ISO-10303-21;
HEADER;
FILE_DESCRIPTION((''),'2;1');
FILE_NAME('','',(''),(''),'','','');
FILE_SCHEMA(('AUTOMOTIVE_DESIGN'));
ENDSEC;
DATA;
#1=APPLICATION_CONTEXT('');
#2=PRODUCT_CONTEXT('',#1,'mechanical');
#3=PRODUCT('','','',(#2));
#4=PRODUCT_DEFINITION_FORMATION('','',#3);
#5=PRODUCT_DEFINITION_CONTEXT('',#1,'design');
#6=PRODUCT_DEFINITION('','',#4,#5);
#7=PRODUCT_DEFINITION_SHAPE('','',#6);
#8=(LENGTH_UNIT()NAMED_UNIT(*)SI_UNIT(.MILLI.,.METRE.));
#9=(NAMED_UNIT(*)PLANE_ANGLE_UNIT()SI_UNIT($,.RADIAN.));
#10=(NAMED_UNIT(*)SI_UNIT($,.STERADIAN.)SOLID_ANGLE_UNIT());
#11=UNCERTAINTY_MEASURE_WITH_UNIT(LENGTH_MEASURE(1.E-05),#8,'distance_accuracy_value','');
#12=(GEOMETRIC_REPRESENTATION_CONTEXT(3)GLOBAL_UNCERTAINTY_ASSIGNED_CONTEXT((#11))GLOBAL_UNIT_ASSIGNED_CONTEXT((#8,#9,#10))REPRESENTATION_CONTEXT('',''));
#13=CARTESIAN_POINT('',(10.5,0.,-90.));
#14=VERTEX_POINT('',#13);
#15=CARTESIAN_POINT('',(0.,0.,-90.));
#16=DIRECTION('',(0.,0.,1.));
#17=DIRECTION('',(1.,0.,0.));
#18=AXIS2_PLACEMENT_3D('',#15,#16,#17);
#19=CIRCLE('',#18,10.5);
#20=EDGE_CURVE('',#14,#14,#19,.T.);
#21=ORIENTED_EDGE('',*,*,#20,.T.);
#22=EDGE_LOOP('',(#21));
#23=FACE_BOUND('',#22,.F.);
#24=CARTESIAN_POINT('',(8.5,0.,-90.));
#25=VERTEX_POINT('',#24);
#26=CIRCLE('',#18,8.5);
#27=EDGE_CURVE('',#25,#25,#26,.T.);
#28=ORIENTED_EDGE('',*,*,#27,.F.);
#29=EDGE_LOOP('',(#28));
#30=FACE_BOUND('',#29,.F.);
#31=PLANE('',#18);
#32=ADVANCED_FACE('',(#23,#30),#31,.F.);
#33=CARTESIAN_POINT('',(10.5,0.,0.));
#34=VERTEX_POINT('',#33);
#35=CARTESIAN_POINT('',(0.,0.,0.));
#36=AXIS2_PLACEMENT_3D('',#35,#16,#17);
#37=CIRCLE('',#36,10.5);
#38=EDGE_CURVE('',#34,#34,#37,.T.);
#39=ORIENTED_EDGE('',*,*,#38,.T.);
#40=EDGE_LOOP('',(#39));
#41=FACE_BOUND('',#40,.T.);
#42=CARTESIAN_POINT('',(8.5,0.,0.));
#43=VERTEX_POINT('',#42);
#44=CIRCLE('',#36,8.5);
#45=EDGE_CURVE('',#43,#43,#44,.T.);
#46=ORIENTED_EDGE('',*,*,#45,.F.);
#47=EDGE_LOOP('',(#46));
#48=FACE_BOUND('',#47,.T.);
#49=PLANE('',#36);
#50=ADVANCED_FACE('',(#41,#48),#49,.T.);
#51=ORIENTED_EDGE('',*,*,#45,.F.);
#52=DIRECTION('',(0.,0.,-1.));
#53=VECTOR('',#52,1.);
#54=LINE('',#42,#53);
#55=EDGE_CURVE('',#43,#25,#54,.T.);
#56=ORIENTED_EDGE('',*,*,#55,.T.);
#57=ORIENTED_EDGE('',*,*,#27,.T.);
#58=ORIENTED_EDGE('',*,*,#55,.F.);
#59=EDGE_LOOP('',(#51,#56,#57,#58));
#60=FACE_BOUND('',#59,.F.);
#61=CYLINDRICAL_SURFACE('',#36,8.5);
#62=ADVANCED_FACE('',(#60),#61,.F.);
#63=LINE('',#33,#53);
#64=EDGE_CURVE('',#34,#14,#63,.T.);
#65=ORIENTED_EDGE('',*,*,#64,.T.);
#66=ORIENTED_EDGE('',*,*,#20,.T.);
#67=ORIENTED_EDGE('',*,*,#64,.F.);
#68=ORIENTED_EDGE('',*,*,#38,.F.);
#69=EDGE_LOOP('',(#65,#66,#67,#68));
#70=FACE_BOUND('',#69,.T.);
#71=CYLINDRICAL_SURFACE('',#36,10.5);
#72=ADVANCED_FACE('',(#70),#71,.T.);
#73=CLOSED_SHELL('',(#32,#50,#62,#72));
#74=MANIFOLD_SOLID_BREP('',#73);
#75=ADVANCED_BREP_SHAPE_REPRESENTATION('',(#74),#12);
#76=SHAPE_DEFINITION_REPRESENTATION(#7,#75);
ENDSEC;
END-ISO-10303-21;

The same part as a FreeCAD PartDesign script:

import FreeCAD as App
import Part
import Sketcher
from FreeCAD import Vector
Q = App.Units.Quantity

doc = App.newDocument("Part")
body = doc.addObject("PartDesign::Body", "Body")

# Sketch on XY plane
sketch1 = body.newObject("Sketcher::SketchObject", "Sketch")
sketch1.AttachmentSupport = (doc.getObject("XY_Plane"), [""])
sketch1.MapMode = "FlatFace"
sketch1.addGeometry(Part.Circle(Vector(0, 0, 0), Vector(0, 0, 1), 10), False)
sketch1.addGeometry(Part.Circle(Vector(0, 0, 0), Vector(0, 0, 1), 8), False)
sketch1.addConstraint(Sketcher.Constraint("Coincident", 0, 3, -1, 1))
sketch1.addConstraint(Sketcher.Constraint("Coincident", 1, 3, -1, 1))
sketch1.addConstraint(Sketcher.Constraint("Diameter", 0, Q("21 mm")))
sketch1.addConstraint(Sketcher.Constraint("Diameter", 1, Q("17 mm")))
pad1 = body.newObject("PartDesign::Pad", "Pad")
pad1.Profile = sketch1
pad1.Length = 90
pad1.Reversed = True

doc.recompute()
